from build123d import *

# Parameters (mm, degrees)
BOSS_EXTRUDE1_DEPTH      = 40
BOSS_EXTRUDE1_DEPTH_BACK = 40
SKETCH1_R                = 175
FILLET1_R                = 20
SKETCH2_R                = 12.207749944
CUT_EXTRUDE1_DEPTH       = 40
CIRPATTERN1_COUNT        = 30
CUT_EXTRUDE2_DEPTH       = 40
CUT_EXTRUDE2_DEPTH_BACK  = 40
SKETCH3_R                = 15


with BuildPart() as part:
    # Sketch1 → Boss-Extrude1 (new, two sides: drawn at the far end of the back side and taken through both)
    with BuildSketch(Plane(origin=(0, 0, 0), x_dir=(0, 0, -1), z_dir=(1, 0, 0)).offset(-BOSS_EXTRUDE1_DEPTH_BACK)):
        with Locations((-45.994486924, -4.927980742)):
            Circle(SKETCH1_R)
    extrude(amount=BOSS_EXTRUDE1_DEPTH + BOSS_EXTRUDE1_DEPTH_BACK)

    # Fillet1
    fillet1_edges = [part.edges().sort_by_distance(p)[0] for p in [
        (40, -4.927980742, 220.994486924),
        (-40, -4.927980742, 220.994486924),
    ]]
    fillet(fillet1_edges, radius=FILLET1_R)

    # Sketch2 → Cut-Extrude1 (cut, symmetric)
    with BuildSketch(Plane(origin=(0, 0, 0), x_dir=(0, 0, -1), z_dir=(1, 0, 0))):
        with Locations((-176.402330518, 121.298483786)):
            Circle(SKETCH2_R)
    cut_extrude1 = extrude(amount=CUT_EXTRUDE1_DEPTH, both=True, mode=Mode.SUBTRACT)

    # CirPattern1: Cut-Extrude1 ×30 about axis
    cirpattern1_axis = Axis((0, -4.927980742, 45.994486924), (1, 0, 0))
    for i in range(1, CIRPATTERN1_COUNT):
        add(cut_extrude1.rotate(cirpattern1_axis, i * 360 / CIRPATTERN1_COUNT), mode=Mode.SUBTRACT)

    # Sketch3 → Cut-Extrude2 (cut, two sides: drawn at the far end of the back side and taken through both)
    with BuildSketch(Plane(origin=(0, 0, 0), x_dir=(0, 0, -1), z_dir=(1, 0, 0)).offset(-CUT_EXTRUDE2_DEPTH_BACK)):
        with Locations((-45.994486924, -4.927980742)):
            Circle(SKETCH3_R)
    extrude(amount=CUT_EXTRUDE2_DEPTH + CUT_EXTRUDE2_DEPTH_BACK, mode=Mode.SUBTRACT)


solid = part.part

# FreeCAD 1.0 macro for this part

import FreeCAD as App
import Part
import Sketcher
from FreeCAD import Vector
Q = App.Units.Quantity


def edges_at(feature, points):
    """Names of the edges that pass closest to the given points."""
    edges = feature.Shape.Edges
    near = lambda p: min(range(len(edges)), key=lambda i: edges[i].distToShape(Part.Vertex(*p))[0])
    return sorted({f"Edge{near(p) + 1}" for p in points})

doc = App.newDocument("Part")
body = doc.addObject("PartDesign::Body", "Body")

sketch1 = body.newObject("Sketcher::SketchObject", "Sketch")
sketch1.AttachmentSupport = (doc.getObject("YZ_Plane"), [""])
sketch1.MapMode = "FlatFace"
sketch1.addGeometry(Part.Circle(Vector(-5, 46, 0), Vector(0, 0, 1), 175), False)
sketch1.addConstraint(Sketcher.Constraint("Diameter", 0, Q("350 mm")))
sketch1.addConstraint(Sketcher.Constraint("DistanceX", 0, 3, -1, 1, Q("4.927981 mm")))
sketch1.addConstraint(Sketcher.Constraint("DistanceY", -1, 1, 0, 3, Q("45.994487 mm")))
pad1 = body.newObject("PartDesign::Pad", "Pad")
pad1.Profile = sketch1
pad1.Type = "TwoLengths"
pad1.Length = 40
pad1.Length2 = 40
doc.recompute()

fillet = body.newObject("PartDesign::Fillet", "Fillet")
fillet.Base = (pad1, edges_at(pad1, [(40, -4.928, 220.994), (-40, -4.928, 220.994)]))
fillet.Radius = 20

sketch2 = body.newObject("Sketcher::SketchObject", "Sketch001")
sketch2.AttachmentSupport = (doc.getObject("YZ_Plane"), [""])
sketch2.MapMode = "FlatFace"
sketch2.addGeometry(Part.Circle(Vector(121, 176, 0), Vector(0, 0, 1), 12), False)
sketch2.addConstraint(Sketcher.Constraint("Diameter", 0, Q("24.4155 mm")))
sketch2.addConstraint(Sketcher.Constraint("DistanceY", -1, 1, 0, 3, Q("176.402331 mm")))
sketch2.addConstraint(Sketcher.Constraint("DistanceX", -1, 1, 0, 3, Q("121.298484 mm")))
pocket1 = body.newObject("PartDesign::Pocket", "Pocket")
pocket1.Profile = sketch2
pocket1.Length = 80
pocket1.Midplane = True
doc.recompute()

datumline = body.newObject("PartDesign::Line", "DatumLine")
datumline.Placement = App.Placement(Vector(0, -4.927981, 45.994487), App.Rotation(Vector(0, 0, 1), Vector(1, 0, 0)))
polarpattern = body.newObject("PartDesign::PolarPattern", "PolarPattern")
polarpattern.Originals = [pocket1]
polarpattern.Axis = (datumline, [""])
polarpattern.Angle = 360
polarpattern.Occurrences = 30
body.Tip = polarpattern

sketch3 = body.newObject("Sketcher::SketchObject", "Sketch002")
sketch3.AttachmentSupport = (doc.getObject("YZ_Plane"), [""])
sketch3.MapMode = "FlatFace"
sketch3.addGeometry(Part.Circle(Vector(-5, 46, 0), Vector(0, 0, 1), 15), False)
sketch3.addConstraint(Sketcher.Constraint("Diameter", 0, Q("30 mm")))
sketch3.addConstraint(Sketcher.Constraint("DistanceX", 0, 3, -1, 1, Q("4.927981 mm")))
sketch3.addConstraint(Sketcher.Constraint("DistanceY", -1, 1, 0, 3, Q("45.994487 mm")))
pocket2 = body.newObject("PartDesign::Pocket", "Pocket001")
pocket2.Profile = sketch3
pocket2.Type = "ThroughAll"
pocket2.Midplane = True

doc.recompute()
